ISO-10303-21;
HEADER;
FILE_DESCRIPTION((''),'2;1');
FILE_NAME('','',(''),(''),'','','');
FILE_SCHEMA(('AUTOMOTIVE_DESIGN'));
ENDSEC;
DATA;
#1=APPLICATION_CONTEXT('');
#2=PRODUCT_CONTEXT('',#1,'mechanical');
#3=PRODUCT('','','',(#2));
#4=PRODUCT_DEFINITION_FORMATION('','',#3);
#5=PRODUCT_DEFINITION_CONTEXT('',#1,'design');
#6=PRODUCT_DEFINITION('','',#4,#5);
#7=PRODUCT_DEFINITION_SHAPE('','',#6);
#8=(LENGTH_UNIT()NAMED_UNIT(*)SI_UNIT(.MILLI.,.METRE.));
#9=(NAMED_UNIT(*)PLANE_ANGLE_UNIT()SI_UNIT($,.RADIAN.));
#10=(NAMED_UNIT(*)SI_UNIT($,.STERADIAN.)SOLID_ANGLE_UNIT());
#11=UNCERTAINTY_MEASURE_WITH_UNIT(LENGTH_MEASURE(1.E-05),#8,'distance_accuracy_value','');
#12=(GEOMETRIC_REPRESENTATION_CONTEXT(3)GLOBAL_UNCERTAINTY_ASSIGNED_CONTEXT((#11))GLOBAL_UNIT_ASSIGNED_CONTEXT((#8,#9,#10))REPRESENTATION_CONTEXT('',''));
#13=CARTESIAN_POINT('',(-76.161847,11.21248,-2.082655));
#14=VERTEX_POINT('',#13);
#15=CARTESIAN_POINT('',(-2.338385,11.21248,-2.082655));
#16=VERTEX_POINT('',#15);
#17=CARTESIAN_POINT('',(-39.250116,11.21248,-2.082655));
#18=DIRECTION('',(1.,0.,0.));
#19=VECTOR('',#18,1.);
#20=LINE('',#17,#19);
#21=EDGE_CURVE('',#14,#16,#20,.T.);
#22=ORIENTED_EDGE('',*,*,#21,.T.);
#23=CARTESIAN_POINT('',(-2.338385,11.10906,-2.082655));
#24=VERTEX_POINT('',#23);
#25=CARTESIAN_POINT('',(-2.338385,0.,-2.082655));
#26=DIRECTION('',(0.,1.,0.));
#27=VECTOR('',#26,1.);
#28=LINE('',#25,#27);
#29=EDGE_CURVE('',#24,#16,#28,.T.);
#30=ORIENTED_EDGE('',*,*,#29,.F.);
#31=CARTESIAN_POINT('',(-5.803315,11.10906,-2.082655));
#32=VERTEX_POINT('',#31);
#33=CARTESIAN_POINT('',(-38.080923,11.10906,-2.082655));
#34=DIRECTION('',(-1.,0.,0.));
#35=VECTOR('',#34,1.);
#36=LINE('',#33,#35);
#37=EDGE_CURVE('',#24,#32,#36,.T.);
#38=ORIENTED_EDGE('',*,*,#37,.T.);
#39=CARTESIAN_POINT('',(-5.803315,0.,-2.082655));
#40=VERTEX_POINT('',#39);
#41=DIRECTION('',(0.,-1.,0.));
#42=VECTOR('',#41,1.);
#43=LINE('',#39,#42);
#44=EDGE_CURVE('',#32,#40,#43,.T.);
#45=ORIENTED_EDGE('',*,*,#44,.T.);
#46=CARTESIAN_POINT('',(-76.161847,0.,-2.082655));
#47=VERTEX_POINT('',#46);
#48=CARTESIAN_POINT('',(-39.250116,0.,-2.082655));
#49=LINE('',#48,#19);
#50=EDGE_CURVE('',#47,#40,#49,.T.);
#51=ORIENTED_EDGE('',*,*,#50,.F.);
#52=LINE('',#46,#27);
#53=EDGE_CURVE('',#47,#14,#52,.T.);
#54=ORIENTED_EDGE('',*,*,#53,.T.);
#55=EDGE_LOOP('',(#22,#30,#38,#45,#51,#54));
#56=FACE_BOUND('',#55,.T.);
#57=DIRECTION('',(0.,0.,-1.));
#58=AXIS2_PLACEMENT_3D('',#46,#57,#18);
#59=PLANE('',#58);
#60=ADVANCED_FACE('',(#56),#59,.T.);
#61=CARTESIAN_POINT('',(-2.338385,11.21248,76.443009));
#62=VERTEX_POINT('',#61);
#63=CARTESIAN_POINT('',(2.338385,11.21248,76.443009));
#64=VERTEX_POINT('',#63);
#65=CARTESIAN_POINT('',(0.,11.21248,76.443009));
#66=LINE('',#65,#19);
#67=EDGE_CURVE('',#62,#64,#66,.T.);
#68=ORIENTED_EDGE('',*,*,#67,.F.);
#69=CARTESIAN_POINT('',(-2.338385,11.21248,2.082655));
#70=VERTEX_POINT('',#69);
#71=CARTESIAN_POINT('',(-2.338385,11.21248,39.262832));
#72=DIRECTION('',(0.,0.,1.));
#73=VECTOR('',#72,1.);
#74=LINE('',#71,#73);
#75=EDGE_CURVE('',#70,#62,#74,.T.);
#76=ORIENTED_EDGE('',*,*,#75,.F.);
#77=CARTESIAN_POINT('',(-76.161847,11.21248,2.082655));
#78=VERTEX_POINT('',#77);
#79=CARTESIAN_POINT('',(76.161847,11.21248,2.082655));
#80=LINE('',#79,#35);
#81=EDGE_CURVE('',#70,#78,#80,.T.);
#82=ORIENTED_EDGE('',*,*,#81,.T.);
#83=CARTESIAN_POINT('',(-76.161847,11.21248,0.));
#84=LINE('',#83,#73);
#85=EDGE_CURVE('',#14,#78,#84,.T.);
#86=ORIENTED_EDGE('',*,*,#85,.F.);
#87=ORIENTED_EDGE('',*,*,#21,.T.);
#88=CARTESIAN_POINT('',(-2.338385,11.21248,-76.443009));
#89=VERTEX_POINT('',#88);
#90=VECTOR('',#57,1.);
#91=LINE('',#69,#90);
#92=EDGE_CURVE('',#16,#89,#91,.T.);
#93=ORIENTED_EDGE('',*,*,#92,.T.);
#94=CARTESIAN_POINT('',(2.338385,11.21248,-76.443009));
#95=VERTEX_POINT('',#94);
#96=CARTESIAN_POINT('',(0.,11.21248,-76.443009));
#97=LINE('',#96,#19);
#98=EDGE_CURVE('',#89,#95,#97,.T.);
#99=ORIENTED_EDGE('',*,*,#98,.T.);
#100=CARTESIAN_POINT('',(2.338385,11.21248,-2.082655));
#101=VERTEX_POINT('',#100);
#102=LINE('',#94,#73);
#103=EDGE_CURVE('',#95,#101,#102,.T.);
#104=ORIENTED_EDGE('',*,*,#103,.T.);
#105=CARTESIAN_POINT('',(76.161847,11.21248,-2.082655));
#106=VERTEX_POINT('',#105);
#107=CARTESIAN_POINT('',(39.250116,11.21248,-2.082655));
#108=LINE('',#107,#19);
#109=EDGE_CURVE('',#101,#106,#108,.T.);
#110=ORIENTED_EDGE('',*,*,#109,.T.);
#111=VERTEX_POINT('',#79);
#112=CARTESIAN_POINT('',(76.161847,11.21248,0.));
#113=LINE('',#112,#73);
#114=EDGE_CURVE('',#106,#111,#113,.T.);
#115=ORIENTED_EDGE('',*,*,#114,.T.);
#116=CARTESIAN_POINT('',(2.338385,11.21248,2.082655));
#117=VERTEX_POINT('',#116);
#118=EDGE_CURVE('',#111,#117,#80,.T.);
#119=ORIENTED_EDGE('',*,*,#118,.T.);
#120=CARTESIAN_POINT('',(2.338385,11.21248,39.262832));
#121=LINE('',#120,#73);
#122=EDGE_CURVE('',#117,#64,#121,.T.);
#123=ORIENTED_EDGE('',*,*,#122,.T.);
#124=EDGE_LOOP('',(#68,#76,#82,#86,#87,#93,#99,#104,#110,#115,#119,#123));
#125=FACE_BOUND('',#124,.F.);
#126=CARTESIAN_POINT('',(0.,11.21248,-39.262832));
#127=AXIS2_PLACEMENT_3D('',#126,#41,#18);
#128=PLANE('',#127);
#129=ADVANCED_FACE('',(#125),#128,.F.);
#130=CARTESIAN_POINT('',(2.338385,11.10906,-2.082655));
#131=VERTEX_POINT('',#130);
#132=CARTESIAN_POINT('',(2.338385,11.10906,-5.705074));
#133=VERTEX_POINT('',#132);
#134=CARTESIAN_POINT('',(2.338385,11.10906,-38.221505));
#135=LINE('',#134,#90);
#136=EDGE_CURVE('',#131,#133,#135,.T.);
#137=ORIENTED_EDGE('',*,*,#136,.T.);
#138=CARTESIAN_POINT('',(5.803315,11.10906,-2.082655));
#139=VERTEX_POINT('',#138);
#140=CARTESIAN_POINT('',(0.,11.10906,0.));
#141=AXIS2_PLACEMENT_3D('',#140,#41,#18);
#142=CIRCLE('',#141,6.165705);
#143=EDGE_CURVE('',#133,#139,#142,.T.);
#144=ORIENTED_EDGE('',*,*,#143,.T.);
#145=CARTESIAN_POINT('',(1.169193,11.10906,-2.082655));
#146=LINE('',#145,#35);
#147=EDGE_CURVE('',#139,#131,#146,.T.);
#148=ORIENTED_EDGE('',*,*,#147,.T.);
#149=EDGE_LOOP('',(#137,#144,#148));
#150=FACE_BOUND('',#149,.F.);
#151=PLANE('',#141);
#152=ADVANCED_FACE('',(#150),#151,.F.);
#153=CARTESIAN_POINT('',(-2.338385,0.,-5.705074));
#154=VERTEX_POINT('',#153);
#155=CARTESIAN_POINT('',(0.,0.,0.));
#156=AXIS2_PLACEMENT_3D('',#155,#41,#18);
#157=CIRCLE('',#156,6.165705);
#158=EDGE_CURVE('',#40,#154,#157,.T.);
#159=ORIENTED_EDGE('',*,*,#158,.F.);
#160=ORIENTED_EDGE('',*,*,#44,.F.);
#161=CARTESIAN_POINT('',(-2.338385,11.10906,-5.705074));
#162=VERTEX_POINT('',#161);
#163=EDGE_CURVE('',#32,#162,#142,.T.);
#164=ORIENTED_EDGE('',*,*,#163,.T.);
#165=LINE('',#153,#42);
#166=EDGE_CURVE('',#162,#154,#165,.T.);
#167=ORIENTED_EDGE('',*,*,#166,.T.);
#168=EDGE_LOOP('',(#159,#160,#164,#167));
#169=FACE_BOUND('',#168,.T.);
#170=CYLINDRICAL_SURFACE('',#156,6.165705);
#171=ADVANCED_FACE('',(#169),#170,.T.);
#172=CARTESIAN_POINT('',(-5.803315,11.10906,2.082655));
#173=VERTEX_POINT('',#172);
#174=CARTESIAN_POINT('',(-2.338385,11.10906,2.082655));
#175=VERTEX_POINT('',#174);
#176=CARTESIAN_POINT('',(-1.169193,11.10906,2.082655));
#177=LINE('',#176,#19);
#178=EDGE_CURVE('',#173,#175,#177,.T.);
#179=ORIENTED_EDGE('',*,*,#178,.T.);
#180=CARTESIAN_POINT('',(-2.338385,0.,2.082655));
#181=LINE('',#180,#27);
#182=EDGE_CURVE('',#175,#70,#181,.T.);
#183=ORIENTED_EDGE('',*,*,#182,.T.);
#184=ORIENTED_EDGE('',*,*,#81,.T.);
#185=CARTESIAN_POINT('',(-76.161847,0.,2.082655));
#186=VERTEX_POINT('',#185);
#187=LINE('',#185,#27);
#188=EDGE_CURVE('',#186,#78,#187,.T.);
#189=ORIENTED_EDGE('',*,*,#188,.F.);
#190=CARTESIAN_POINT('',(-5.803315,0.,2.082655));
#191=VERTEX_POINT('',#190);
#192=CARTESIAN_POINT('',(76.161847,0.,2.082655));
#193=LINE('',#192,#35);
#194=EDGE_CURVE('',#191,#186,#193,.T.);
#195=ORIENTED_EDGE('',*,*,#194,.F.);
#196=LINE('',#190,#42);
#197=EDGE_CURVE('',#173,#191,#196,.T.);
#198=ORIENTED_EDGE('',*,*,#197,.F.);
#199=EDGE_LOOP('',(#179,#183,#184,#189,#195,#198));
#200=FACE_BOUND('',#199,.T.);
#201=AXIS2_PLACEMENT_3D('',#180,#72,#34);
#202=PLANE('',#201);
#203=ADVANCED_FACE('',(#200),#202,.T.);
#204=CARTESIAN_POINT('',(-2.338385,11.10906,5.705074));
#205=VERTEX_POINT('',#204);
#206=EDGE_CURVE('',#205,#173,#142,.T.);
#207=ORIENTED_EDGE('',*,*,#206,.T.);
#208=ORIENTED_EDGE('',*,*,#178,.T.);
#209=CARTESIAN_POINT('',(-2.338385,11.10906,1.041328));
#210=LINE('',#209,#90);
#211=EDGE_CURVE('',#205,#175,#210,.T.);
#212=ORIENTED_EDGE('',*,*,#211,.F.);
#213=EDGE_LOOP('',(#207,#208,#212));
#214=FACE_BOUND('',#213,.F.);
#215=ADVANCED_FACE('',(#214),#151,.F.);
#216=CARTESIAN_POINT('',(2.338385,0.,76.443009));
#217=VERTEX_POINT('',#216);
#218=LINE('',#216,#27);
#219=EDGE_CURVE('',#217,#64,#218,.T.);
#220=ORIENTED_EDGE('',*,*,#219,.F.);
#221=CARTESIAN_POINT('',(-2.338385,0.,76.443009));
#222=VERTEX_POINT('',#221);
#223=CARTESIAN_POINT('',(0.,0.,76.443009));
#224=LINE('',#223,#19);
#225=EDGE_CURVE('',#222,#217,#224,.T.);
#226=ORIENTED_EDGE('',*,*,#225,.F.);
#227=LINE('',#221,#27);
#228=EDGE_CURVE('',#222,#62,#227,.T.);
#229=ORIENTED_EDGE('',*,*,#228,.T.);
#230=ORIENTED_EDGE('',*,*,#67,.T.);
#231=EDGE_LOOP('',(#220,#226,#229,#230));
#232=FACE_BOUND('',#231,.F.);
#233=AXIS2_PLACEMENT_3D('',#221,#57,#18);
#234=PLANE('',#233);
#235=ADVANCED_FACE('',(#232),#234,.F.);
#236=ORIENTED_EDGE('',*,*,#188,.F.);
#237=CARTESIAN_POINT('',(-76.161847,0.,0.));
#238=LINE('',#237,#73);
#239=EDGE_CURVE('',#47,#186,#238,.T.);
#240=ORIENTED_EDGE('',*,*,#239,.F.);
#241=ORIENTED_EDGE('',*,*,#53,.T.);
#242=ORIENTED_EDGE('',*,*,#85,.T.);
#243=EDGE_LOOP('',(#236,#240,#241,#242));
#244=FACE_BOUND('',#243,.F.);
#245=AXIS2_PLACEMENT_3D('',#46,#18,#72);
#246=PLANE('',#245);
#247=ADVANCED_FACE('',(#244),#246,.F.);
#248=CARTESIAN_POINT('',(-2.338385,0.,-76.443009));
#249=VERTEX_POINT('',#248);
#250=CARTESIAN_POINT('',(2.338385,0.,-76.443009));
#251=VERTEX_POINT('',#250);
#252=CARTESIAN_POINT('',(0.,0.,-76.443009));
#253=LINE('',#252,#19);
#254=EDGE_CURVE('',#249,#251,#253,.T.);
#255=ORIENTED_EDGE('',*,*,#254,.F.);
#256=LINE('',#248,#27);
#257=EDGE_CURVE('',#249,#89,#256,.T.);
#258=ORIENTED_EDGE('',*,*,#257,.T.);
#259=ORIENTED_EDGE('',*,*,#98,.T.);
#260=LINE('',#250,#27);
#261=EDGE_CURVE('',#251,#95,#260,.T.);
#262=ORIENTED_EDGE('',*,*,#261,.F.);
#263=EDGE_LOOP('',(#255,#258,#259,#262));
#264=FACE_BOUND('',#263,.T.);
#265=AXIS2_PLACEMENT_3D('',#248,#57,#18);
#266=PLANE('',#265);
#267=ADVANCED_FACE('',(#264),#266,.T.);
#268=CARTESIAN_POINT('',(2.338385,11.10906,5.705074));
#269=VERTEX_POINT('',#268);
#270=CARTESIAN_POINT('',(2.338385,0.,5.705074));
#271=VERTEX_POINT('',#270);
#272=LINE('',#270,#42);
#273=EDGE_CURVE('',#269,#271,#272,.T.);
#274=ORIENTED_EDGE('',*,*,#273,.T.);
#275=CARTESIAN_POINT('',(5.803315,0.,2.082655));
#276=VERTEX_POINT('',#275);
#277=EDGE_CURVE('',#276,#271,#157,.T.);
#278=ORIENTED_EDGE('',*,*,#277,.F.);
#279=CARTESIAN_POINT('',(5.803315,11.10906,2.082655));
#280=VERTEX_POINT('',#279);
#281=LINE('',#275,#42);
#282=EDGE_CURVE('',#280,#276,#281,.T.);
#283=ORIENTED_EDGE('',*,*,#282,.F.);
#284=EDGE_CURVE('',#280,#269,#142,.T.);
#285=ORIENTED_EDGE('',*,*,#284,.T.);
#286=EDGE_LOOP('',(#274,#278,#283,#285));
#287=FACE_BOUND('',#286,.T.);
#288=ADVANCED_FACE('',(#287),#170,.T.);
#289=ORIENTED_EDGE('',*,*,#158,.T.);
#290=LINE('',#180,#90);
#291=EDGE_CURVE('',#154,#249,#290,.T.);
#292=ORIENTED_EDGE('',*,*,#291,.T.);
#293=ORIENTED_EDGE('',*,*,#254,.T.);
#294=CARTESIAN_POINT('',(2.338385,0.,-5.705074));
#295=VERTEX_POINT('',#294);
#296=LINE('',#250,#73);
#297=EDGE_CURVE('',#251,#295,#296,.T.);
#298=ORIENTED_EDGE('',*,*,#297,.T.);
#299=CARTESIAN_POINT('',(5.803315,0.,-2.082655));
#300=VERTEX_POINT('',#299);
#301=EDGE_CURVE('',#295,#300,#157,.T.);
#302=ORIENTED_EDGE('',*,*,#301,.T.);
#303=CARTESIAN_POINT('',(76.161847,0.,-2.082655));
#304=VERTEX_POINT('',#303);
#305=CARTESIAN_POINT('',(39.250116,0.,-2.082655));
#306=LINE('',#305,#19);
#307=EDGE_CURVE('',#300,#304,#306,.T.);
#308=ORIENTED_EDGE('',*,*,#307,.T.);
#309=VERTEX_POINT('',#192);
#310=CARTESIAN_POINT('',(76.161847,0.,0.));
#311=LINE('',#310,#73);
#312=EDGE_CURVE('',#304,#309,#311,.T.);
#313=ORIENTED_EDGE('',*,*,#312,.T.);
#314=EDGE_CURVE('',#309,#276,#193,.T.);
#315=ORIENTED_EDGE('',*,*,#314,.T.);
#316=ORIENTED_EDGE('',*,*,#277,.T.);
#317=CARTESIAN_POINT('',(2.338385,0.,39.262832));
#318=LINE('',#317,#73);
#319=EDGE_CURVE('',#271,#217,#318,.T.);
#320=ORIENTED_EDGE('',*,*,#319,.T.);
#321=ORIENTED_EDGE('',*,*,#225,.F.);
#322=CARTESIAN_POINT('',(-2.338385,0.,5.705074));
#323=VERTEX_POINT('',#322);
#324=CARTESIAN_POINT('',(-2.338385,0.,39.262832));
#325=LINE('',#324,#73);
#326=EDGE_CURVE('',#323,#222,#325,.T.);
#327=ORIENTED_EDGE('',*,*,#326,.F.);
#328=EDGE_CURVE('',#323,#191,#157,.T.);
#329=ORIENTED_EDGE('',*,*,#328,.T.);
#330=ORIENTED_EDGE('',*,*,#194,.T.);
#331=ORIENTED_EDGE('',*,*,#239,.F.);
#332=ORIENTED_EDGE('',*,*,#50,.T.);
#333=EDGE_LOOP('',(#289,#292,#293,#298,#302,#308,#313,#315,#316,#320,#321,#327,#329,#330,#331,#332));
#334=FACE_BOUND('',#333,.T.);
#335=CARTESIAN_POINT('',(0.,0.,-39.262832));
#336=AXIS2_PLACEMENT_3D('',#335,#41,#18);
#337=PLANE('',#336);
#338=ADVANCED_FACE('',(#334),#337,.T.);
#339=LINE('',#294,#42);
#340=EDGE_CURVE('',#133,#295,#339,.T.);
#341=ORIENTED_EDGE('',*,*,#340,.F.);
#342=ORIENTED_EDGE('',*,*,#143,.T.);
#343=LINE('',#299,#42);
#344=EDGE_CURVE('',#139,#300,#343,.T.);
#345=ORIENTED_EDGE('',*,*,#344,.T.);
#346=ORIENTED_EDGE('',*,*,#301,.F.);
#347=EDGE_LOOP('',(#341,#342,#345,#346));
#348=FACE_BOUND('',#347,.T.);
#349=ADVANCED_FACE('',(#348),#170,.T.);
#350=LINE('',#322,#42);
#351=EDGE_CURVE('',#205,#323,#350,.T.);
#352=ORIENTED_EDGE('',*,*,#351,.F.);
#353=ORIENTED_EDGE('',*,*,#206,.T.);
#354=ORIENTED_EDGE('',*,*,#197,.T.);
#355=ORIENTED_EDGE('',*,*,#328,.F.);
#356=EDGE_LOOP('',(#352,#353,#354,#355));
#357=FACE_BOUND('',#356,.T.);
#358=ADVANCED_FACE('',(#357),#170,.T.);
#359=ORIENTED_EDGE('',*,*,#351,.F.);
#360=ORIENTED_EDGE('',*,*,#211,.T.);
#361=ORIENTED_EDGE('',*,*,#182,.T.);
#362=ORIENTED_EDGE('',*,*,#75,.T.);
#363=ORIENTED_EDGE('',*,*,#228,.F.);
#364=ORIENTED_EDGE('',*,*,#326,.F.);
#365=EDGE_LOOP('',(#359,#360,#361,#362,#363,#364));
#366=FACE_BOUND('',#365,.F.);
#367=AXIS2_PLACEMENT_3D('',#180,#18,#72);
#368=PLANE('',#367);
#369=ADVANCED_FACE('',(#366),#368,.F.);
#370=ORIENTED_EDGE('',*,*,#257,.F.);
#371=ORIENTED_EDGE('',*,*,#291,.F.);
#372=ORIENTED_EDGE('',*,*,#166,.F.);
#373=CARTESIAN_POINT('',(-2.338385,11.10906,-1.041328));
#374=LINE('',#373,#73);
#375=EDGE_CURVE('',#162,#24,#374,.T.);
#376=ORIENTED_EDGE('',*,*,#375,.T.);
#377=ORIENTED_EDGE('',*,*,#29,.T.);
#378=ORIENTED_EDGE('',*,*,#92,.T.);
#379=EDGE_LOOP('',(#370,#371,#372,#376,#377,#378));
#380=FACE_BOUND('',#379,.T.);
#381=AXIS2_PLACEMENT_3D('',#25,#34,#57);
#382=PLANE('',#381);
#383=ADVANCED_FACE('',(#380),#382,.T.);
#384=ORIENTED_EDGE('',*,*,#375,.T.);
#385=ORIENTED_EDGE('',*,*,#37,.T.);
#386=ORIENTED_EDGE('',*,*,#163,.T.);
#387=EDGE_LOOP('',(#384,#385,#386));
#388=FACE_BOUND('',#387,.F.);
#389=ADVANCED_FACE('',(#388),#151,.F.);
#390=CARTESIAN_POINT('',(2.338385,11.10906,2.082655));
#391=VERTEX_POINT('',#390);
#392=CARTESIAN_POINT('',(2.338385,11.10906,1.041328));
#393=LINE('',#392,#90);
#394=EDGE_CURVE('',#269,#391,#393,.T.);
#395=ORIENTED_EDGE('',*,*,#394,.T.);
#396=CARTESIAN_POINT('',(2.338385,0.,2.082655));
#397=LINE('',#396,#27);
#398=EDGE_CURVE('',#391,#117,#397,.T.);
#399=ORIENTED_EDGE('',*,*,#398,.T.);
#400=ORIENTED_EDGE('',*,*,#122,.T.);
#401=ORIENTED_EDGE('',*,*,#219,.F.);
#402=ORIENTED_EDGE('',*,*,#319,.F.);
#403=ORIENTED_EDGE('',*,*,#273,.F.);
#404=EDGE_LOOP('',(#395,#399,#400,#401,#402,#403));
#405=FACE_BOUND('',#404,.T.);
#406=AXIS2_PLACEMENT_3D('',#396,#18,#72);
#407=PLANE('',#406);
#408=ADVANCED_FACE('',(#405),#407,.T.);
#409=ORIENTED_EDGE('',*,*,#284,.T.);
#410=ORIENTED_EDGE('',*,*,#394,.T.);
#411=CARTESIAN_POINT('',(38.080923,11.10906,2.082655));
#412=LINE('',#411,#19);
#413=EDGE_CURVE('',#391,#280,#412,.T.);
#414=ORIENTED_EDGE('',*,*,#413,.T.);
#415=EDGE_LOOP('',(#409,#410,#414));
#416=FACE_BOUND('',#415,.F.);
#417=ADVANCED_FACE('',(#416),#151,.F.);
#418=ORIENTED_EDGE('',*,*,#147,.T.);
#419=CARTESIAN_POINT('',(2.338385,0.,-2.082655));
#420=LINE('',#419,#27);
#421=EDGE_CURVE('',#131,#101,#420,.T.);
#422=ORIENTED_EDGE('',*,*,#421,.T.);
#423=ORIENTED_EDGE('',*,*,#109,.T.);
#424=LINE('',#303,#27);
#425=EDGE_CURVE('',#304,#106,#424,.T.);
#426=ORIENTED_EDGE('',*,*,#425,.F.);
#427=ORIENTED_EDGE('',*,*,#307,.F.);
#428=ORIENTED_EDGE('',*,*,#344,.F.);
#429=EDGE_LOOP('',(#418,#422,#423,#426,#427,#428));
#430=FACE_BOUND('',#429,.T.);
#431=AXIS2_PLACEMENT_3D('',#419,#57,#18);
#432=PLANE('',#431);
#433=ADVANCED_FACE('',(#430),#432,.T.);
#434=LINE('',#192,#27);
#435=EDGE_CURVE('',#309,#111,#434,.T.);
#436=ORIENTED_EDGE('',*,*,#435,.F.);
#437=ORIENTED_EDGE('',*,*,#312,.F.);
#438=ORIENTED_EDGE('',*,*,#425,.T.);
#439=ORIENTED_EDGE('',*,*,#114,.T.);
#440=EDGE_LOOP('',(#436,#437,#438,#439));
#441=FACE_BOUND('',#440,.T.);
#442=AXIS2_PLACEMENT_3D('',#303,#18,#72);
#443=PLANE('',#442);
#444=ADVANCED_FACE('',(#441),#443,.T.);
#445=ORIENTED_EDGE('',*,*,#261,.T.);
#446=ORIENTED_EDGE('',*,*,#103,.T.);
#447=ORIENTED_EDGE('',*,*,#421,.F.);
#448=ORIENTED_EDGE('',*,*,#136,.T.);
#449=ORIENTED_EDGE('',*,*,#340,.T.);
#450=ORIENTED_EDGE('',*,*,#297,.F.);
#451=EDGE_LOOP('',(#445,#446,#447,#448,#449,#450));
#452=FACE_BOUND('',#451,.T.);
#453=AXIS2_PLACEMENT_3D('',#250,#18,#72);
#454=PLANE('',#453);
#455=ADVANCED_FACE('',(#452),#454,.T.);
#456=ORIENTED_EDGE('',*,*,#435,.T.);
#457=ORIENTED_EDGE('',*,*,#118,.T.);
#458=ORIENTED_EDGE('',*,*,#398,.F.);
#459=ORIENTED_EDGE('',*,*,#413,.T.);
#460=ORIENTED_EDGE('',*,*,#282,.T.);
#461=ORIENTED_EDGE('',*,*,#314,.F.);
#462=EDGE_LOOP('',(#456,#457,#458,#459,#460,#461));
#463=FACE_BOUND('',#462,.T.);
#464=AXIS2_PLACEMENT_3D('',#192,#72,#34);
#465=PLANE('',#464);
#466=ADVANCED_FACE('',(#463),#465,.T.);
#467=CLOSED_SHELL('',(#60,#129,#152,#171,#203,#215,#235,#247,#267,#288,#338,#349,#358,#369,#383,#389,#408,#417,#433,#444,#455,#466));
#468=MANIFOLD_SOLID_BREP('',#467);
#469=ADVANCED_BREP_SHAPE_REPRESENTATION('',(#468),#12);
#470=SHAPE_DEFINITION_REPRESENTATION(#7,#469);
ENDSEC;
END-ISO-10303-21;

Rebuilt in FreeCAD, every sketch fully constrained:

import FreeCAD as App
import Part
import Sketcher

V = App.Vector
Q = App.Units.Quantity

doc = App.newDocument("Part")
body = doc.addObject("PartDesign::Body", "Body")

sketch1 = body.newObject("Sketcher::SketchObject", "Sketch")
sketch1.AttachmentSupport = (doc.getObject("XZ_Plane"), [""])
sketch1.MapMode = "FlatFace"
sketch1.addGeometry([
    Part.LineSegment(V(-2.3, -76.4, 0), V(2.3, -76.4, 0)),
    Part.LineSegment(V(2.3, -76.4, 0), V(2.3, -2.1, 0)),
    Part.LineSegment(V(2.3, -2.1, 0), V(76.2, -2.1, 0)),
    Part.LineSegment(V(76.2, -2.1, 0), V(76.2, 2.1, 0)),
    Part.LineSegment(V(76.2, 2.1, 0), V(2.3, 2.1, 0)),
    Part.LineSegment(V(2.3, 2.1, 0), V(2.3, 76.4, 0)),
    Part.LineSegment(V(2.3, 76.4, 0), V(-2.3, 76.4, 0)),
    Part.LineSegment(V(-2.3, 76.4, 0), V(-2.3, 2.1, 0)),
    Part.LineSegment(V(-2.3, 2.1, 0), V(-76.2, 2.1, 0)),
    Part.LineSegment(V(-76.2, 2.1, 0), V(-76.2, -2.1, 0)),
    Part.LineSegment(V(-76.2, -2.1, 0), V(-2.3, -2.1, 0)),
    Part.LineSegment(V(-2.3, -2.1, 0), V(-2.3, -76.4, 0)),
], False)
sketch1.addConstraint([
    Sketcher.Constraint("Coincident", 0, 2, 1, 1),
    Sketcher.Constraint("Coincident", 1, 2, 2, 1),
    Sketcher.Constraint("Coincident", 2, 2, 3, 1),
    Sketcher.Constraint("Coincident", 3, 2, 4, 1),
    Sketcher.Constraint("Coincident", 4, 2, 5, 1),
    Sketcher.Constraint("Coincident", 5, 2, 6, 1),
    Sketcher.Constraint("Coincident", 6, 2, 7, 1),
    Sketcher.Constraint("Coincident", 7, 2, 8, 1),
    Sketcher.Constraint("Coincident", 8, 2, 9, 1),
    Sketcher.Constraint("Coincident", 9, 2, 10, 1),
    Sketcher.Constraint("Coincident", 10, 2, 11, 1),
    Sketcher.Constraint("Coincident", 11, 2, 0, 1),
    Sketcher.Constraint("Horizontal", 0),
    Sketcher.Constraint("Vertical", 1),
    Sketcher.Constraint("Horizontal", 2),
    Sketcher.Constraint("Vertical", 3),
    Sketcher.Constraint("Horizontal", 4),
    Sketcher.Constraint("Vertical", 5),
    Sketcher.Constraint("Horizontal", 6),
    Sketcher.Constraint("Vertical", 7),
    Sketcher.Constraint("Horizontal", 8),
    Sketcher.Constraint("Vertical", 9),
    Sketcher.Constraint("Horizontal", 10),
    Sketcher.Constraint("Vertical", 11),
    Sketcher.Constraint("Symmetric", 0, 2, 6, 2, -1, 1),
    Sketcher.Constraint("Symmetric", 2, 2, 8, 2, -1, 1),
    Sketcher.Constraint("Symmetric", 4, 2, 10, 2, -1, 1),
    Sketcher.Constraint("Symmetric", 4, 2, 7, 2, -2),
    Sketcher.Constraint("DistanceX", 0, 1, 0, 2, Q("4.67677 mm")),
    Sketcher.Constraint("DistanceX", 2, 1, 2, 2, Q("73.823461 mm")),
    Sketcher.Constraint("DistanceY", 3, 1, 3, 2, Q("4.16531 mm")),
    Sketcher.Constraint("DistanceY", 1, 1, 1, 2, Q("74.360354 mm")),
])
pad1 = body.newObject("PartDesign::Pad", "Pad")
pad1.Profile = sketch1
pad1.Length = 11.21248
pad1.Reversed = True

sketch2 = body.newObject("Sketcher::SketchObject", "Sketch001")
sketch2.AttachmentSupport = (doc.getObject("XZ_Plane"), [""])
sketch2.MapMode = "FlatFace"
sketch2.addGeometry(Part.Circle(V(0, 0, 0), V(0, 0, 1), 6), False)
sketch2.addConstraint([
    Sketcher.Constraint("Coincident", 0, 3, -1, 1),
    Sketcher.Constraint("Diameter", 0, Q("12.331409 mm")),
])
pad2 = body.newObject("PartDesign::Pad", "Pad001")
pad2.Profile = sketch2
pad2.Length = 11.10906
pad2.Reversed = True

doc.recompute()
